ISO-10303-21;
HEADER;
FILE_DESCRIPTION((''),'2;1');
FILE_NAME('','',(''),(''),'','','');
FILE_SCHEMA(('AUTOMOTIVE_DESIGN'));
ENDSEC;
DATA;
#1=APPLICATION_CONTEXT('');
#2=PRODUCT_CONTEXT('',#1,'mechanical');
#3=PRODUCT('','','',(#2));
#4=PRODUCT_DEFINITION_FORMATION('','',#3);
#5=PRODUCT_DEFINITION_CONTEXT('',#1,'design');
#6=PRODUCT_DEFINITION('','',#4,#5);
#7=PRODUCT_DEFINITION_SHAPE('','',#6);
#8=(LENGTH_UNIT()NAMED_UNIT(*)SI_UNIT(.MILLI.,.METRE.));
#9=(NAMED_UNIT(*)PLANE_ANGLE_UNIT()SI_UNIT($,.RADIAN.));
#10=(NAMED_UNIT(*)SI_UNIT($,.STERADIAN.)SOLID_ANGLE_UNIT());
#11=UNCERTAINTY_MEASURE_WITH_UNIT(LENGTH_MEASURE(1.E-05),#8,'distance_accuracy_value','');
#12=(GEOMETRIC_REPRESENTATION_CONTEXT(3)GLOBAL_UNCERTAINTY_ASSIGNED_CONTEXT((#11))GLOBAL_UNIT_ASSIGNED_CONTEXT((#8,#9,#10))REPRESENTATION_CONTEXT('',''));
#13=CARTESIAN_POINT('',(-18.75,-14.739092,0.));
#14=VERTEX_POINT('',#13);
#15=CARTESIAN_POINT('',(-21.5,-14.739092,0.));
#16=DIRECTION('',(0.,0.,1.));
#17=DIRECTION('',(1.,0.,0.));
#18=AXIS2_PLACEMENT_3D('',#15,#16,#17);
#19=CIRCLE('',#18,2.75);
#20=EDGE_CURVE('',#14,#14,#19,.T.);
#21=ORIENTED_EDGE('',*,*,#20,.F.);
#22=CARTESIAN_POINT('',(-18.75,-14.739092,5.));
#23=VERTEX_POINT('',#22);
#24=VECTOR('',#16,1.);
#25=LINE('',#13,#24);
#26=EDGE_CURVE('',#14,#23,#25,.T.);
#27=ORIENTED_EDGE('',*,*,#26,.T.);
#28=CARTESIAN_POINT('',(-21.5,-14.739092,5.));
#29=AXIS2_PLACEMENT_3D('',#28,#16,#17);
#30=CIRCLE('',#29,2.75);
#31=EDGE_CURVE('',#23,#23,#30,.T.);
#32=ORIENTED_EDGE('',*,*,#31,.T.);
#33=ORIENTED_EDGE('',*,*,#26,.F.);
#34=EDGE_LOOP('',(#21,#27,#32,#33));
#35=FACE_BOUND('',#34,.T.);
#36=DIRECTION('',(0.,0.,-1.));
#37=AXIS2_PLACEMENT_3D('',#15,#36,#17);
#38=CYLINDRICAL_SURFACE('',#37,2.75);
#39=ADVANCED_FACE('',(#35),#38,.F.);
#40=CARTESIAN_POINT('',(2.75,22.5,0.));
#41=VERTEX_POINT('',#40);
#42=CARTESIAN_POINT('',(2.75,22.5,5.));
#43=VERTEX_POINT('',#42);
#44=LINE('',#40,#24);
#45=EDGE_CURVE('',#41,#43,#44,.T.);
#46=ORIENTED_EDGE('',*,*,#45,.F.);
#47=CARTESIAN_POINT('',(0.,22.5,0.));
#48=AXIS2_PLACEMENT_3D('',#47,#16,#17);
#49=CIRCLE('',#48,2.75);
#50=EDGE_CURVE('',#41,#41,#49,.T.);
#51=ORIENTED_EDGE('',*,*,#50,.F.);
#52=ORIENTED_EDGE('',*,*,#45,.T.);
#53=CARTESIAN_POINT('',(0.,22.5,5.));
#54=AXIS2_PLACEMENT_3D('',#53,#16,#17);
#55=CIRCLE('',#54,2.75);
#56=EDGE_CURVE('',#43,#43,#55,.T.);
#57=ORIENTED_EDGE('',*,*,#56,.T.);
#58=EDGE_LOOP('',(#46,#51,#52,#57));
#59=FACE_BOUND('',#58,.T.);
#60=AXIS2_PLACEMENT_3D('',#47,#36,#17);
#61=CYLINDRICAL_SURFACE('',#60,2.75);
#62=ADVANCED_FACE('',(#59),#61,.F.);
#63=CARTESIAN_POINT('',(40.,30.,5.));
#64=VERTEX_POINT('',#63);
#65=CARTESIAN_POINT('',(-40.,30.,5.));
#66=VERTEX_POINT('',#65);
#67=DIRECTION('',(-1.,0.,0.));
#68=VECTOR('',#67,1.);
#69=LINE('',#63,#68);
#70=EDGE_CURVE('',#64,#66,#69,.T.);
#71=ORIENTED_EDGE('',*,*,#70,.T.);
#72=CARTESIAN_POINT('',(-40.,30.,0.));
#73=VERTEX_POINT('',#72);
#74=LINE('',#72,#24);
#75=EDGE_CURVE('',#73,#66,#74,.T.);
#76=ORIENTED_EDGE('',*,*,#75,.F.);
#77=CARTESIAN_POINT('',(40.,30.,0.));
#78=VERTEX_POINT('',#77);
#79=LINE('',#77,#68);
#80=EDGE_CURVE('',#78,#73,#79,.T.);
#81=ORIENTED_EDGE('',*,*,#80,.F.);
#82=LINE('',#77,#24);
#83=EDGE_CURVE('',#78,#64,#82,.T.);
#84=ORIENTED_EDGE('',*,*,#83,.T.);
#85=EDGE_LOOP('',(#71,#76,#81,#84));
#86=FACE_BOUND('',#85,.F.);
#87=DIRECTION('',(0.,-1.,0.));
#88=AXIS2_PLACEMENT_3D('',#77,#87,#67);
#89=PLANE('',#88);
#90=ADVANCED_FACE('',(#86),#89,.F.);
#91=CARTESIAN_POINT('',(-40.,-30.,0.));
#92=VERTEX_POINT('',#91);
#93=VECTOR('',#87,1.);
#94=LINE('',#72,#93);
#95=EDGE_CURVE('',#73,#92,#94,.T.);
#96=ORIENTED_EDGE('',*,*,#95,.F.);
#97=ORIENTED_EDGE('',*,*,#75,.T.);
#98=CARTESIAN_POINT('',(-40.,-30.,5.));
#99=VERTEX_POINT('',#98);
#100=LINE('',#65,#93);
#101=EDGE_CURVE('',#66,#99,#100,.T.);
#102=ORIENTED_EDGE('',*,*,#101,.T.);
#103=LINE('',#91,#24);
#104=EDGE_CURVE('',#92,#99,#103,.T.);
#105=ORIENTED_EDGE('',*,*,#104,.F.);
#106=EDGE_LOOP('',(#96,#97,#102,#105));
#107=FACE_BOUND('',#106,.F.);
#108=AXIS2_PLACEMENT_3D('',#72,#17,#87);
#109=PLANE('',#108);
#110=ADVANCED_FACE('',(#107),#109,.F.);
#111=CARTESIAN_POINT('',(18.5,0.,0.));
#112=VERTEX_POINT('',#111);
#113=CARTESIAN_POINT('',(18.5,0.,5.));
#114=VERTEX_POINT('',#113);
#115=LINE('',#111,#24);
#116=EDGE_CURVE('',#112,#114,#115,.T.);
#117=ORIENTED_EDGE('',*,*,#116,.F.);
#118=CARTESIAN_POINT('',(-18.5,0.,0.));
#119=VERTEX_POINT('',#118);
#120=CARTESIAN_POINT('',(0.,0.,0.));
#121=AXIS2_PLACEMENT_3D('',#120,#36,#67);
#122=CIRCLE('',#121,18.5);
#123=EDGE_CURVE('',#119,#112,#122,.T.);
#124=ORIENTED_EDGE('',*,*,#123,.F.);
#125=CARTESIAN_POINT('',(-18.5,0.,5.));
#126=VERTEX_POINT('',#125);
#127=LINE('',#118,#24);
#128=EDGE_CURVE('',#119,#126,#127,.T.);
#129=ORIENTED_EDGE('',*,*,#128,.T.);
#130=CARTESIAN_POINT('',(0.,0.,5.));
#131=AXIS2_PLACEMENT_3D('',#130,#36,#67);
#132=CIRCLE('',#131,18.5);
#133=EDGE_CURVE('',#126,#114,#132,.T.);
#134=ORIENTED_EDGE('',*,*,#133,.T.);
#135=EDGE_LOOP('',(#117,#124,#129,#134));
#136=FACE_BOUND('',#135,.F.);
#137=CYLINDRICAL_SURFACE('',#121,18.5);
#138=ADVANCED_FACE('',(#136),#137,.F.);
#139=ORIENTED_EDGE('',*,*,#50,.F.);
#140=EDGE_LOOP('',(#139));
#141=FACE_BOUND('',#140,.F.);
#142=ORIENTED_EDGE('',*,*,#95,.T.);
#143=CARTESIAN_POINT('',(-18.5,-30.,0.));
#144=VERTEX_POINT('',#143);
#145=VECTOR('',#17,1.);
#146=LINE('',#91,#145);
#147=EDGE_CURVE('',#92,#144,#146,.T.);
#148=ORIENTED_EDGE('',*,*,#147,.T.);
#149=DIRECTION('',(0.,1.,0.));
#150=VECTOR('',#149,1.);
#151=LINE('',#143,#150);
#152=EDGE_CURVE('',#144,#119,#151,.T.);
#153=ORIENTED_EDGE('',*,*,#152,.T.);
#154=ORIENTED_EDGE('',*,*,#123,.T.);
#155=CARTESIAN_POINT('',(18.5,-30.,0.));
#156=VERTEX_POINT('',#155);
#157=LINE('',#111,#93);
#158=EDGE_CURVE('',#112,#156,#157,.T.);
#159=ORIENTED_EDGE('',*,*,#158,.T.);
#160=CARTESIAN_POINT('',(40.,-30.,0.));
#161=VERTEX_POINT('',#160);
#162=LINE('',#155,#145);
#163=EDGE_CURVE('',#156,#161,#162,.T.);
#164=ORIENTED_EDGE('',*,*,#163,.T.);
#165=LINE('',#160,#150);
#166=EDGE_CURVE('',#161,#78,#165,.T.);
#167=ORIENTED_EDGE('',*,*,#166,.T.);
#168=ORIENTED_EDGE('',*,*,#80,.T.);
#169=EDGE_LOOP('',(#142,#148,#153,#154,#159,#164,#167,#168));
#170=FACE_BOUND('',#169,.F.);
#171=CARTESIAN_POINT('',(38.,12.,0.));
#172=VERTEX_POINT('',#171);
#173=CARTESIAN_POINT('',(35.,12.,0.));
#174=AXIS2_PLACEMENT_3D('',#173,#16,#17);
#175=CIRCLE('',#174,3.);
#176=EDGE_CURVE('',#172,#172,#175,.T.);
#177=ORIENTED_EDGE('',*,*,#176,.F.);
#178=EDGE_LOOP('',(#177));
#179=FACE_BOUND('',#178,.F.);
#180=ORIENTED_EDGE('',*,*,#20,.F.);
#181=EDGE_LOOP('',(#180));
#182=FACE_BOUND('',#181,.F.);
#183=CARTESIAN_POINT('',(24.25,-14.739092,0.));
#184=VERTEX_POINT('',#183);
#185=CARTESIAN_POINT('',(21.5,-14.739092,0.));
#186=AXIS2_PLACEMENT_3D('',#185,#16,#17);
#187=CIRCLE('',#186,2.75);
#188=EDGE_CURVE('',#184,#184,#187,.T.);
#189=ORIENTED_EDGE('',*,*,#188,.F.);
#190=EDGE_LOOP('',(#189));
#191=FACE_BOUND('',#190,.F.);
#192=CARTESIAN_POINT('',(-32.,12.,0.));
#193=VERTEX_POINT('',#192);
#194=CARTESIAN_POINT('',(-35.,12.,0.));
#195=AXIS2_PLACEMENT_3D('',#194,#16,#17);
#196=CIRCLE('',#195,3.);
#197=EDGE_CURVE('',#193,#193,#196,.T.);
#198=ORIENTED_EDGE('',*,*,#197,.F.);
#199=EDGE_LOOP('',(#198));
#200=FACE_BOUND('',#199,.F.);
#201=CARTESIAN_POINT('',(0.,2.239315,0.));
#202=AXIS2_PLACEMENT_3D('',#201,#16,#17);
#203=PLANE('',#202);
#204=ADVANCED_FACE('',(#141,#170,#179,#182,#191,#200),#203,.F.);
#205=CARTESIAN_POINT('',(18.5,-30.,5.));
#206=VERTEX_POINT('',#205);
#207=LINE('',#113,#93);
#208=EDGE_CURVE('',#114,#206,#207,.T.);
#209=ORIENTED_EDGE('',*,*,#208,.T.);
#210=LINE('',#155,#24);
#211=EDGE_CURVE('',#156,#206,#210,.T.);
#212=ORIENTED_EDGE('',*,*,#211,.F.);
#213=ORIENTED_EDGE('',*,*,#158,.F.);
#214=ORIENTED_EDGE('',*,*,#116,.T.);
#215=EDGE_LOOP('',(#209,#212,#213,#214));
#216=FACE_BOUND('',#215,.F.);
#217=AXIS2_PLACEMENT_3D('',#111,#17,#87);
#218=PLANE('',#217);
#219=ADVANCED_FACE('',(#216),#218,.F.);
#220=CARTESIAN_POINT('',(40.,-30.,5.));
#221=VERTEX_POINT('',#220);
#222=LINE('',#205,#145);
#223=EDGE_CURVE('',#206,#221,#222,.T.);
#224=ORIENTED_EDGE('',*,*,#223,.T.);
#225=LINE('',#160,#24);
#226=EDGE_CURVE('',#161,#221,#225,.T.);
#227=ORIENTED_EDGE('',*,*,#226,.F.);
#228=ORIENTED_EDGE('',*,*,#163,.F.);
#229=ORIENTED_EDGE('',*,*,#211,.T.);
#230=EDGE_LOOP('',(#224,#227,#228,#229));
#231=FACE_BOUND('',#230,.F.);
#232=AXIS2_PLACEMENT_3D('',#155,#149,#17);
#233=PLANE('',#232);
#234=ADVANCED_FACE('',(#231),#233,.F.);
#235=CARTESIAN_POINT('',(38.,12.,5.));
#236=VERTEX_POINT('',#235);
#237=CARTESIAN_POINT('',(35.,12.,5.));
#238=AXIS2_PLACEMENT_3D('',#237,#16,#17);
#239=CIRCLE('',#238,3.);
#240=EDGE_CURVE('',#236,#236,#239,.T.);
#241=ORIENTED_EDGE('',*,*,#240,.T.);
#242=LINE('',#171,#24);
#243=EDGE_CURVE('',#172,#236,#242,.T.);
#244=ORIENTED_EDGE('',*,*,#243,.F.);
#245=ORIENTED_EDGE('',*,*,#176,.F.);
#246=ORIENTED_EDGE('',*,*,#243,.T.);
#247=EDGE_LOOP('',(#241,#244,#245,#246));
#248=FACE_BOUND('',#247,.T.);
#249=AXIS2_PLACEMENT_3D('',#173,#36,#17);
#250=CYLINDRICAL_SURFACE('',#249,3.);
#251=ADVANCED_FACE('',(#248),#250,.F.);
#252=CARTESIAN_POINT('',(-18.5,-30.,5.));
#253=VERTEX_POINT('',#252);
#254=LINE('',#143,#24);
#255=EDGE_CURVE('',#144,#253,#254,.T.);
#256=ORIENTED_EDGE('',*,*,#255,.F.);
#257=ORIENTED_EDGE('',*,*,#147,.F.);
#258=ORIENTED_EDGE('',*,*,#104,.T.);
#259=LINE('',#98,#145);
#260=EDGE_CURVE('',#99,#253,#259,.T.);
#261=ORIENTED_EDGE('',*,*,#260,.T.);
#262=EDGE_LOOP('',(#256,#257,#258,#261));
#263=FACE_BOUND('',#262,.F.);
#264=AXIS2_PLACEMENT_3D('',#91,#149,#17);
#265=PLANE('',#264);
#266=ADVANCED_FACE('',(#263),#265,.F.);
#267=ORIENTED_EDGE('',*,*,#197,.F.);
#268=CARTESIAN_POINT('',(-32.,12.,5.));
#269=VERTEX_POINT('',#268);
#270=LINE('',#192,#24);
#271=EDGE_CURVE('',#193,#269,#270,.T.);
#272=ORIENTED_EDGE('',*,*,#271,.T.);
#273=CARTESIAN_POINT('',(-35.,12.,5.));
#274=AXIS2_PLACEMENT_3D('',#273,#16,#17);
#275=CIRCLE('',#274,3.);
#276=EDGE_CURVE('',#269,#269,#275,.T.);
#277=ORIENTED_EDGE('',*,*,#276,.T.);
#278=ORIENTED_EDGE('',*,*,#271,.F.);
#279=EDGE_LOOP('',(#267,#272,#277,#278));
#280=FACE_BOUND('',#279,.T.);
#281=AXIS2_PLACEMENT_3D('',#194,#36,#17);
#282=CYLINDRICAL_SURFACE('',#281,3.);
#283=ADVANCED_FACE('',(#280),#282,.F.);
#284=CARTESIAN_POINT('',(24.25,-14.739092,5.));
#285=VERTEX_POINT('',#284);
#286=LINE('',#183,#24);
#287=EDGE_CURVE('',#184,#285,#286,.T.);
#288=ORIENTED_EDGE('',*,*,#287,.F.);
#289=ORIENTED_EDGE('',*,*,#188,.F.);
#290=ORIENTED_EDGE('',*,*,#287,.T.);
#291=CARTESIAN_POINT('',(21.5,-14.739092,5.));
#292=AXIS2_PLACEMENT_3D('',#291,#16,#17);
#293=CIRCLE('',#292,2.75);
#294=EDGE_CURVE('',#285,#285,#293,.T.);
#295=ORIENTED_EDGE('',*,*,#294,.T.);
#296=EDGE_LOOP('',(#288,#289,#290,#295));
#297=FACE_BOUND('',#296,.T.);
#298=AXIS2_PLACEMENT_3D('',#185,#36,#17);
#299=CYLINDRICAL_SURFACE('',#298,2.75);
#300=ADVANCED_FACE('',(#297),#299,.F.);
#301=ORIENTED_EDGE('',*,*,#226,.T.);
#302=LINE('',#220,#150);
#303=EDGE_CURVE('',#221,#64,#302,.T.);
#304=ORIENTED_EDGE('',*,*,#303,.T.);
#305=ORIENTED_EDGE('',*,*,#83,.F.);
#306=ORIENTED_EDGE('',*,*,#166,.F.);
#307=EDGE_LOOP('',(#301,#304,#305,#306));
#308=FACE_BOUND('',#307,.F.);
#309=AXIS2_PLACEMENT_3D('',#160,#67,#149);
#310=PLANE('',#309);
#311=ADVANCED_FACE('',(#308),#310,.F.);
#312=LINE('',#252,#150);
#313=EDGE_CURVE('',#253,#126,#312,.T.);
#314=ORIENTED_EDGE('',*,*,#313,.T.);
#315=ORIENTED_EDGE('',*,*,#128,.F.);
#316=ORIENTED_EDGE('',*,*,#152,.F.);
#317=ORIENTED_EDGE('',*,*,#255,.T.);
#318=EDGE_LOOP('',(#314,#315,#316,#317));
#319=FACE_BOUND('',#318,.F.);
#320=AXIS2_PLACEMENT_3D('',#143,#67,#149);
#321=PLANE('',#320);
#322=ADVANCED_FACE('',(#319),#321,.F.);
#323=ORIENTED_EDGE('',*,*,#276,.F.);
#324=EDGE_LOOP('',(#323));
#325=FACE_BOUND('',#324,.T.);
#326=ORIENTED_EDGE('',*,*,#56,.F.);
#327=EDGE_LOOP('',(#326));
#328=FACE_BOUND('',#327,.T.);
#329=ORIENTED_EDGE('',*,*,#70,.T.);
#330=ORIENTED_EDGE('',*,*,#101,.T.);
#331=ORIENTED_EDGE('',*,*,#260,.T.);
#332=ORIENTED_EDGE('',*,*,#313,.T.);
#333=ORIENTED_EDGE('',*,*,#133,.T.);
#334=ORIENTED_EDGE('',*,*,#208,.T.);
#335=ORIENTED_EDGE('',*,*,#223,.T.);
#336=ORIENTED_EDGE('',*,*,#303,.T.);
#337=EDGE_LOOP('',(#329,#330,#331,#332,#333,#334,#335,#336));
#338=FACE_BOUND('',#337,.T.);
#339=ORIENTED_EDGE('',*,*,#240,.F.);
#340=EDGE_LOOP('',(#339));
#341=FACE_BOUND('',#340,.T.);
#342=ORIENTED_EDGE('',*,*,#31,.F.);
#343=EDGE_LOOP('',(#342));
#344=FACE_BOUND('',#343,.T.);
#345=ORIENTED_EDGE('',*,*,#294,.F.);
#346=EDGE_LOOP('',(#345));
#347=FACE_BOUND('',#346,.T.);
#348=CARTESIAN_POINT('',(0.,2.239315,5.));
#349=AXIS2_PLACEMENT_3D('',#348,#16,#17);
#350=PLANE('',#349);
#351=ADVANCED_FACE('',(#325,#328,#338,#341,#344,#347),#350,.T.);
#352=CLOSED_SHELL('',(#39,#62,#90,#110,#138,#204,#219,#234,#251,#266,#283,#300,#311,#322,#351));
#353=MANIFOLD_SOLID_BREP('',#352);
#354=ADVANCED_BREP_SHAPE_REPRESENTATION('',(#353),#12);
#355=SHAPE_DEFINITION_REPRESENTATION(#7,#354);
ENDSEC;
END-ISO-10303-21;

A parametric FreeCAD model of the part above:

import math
import FreeCAD as App
import Part
import Sketcher
Q = App.Units.Quantity

doc = App.newDocument("Part")
body = doc.addObject("PartDesign::Body", "Body")

# Sketch on XY plane
sketch1 = body.newObject("Sketcher::SketchObject", "Sketch")
sketch1.AttachmentSupport = (doc.getObject("XY_Plane"), [""])
sketch1.MapMode = "FlatFace"
sketch1.addGeometry([
    Part.LineSegment(App.Vector(-40, 30, 0), App.Vector(-40, -30, 0)),  # 0
    Part.LineSegment(App.Vector(-40, -30, 0), App.Vector(-18.5, -30, 0)),  # 1
    Part.LineSegment(App.Vector(-18.5, -30, 0), App.Vector(-18.5, 0, 0)),  # 2
    Part.ArcOfCircle(Part.Circle(App.Vector(0, 0, 0), App.Vector(0, 0, 1), 18.5), math.radians(0), math.radians(180)),  # 3
    Part.LineSegment(App.Vector(18.5, 0, 0), App.Vector(18.5, -30, 0)),  # 4
    Part.LineSegment(App.Vector(18.5, -30, 0), App.Vector(40, -30, 0)),  # 5
    Part.LineSegment(App.Vector(40, -30, 0), App.Vector(40, 30, 0)),  # 6
    Part.LineSegment(App.Vector(40, 30, 0), App.Vector(-40, 30, 0)),  # 7
    Part.Circle(App.Vector(-21.5, -14.739092, 0), App.Vector(0, 0, 1), 2.75),  # 8
    Part.Circle(App.Vector(21.5, -14.739092, 0), App.Vector(0, 0, 1), 2.75),  # 9
    Part.Circle(App.Vector(-35, 12, 0), App.Vector(0, 0, 1), 3),  # 10
    Part.Circle(App.Vector(35, 12, 0), App.Vector(0, 0, 1), 3),  # 11
    Part.Circle(App.Vector(0, 22.5, 0), App.Vector(0, 0, 1), 2.75),  # 12
], False)
sketch1.addConstraint([
    Sketcher.Constraint("Coincident", 0, 2, 1, 1),
    Sketcher.Constraint("Coincident", 1, 2, 2, 1),
    Sketcher.Constraint("Tangent", 2, 2, 3, 2),
    Sketcher.Constraint("Tangent", 3, 1, 4, 1),
    Sketcher.Constraint("Coincident", 4, 2, 5, 1),
    Sketcher.Constraint("Coincident", 5, 2, 6, 1),
    Sketcher.Constraint("Coincident", 6, 2, 7, 1),
    Sketcher.Constraint("Coincident", 7, 2, 0, 1),
    Sketcher.Constraint("Vertical", 0),
    Sketcher.Constraint("Horizontal", 1),
    Sketcher.Constraint("Vertical", 2),
    Sketcher.Constraint("Vertical", 4),
    Sketcher.Constraint("Horizontal", 5),
    Sketcher.Constraint("Vertical", 6),
    Sketcher.Constraint("Horizontal", 7),
    Sketcher.Constraint("Coincident", 3, 3, -1, 1),
    Sketcher.Constraint("Equal", 8, 9),
    Sketcher.Constraint("Equal", 10, 11),
    Sketcher.Constraint("Equal", 9, 12),
    Sketcher.Constraint("Symmetric", 0, 2, 6, 2, -1, 1),
    Sketcher.Constraint("Symmetric", 8, 3, 9, 3, -2),
    Sketcher.Constraint("Symmetric", 10, 3, 11, 3, -2),
    Sketcher.Constraint("PointOnObject", 12, 3, -2),
    Sketcher.Constraint("Horizontal", 1, 2, 4, 2),
    Sketcher.Constraint("Diameter", 10, Q("6 mm")),
    Sketcher.Constraint("Diameter", 8, Q("5.5 mm")),
    Sketcher.Constraint("Radius", 3, Q("18.5 mm")),
    Sketcher.Constraint("DistanceX", 7, 2, 7, 1, Q("80 mm")),
    Sketcher.Constraint("DistanceY", 0, 2, 0, 1, Q("60 mm")),
    Sketcher.Constraint("DistanceX", 10, 3, -1, 1, Q("35 mm")),
    Sketcher.Constraint("DistanceY", -1, 1, 10, 3, Q("12 mm")),
    Sketcher.Constraint("DistanceX", 8, 3, 9, 3, Q("43 mm")),
    Sketcher.Constraint("DistanceY", -1, 1, 12, 3, Q("22.5 mm")),
    Sketcher.Constraint("DistanceY", 8, 3, 10, 3, Q("26.739092 mm")),
])
pad1 = body.newObject("PartDesign::Pad", "Pad")
pad1.Profile = sketch1
pad1.Length = 5

doc.recompute()
